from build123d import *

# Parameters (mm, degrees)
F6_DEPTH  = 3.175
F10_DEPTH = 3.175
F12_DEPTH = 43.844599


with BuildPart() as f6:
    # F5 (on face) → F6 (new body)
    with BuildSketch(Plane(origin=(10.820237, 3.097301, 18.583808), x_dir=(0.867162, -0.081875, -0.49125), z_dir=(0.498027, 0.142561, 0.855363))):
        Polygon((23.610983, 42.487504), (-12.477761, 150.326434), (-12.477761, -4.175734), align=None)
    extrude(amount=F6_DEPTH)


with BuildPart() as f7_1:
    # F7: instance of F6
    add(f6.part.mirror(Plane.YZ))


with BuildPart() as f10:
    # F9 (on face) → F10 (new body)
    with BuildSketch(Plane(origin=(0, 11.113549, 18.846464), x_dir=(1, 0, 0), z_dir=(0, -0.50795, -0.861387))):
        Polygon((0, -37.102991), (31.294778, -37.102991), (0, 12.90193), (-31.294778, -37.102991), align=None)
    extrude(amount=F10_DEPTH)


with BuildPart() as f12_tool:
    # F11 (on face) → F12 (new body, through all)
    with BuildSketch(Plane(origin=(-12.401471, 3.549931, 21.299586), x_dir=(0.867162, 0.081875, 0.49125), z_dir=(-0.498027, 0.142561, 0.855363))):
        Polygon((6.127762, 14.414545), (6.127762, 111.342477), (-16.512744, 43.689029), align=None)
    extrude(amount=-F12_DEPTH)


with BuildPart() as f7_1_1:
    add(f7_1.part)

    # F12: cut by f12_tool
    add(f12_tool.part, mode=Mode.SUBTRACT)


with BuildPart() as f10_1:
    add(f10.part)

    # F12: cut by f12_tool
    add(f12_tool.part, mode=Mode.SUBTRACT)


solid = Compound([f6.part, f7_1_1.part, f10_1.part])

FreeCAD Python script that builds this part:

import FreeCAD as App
import Part
import Sketcher
from FreeCAD import Vector
Q = App.Units.Quantity


def add_polygon(sketch, points):
    """Adds a closed chain of lines whose ends are joined by coincident constraints."""
    first, n = sketch.GeometryCount, len(points)
    for a, b in zip(points, points[1:] + points[:1]):
        sketch.addGeometry(Part.LineSegment(App.Vector(*a, 0), App.Vector(*b, 0)), False)
    for i in range(n):
        sketch.addConstraint(Sketcher.Constraint("Coincident", first + i, 2, first + (i + 1) % n, 1))

doc = App.newDocument("Part")
params = doc.addObject("Spreadsheet::Sheet", "Params")
for row, (alias, value) in enumerate([
    ("pad1_length", "0.125 in"),
    ("pad2_length", "0.125 in"),
    ("pad3_length", "43.844599 mm"),
], start=1):
    params.set(f"A{row}", alias)
    params.set(f"B{row}", "=" + value)
    params.setAlias(f"B{row}", alias)

body = doc.addObject("PartDesign::Body", "Body")

# Sketch on an angled plane
sketch1 = body.newObject("Sketcher::SketchObject", "Sketch")
sketch1.Placement = App.Placement(Vector(10.820237, 3.097301, 18.583808), App.Rotation(Vector(0.867161579, -0.081875118, -0.49125071), Vector(-0.000000246, 0.986393853, -0.164399409), Vector(0.498026902, 0.142560972, 0.855362832), "ZXY"))
add_polygon(sketch1, [(24, 42), (-12, 150), (-12, -4)])  # lines 0-2
sketch1.addConstraint(Sketcher.Constraint("Vertical", 1))
sketch1.addConstraint(Sketcher.Constraint("DistanceY", 1, 2, 1, 1, Q("154.502168 mm")))
sketch1.addConstraint(Sketcher.Constraint("DistanceX", 0, 2, -1, 1, Q("12.477761 mm")))
sketch1.addConstraint(Sketcher.Constraint("DistanceY", 2, 2, 0, 2, Q("107.83893 mm")))
sketch1.addConstraint(Sketcher.Constraint("Distance", 0, Q("113.717335 mm")))
sketch1.addConstraint(Sketcher.Constraint("DistanceY", -1, 1, 0, 2, Q("150.326434 mm")))
pad1 = body.newObject("PartDesign::Pad", "Pad")
pad1.Profile = sketch1
pad1.setExpression("Length", "Params.pad1_length")
body2 = doc.addObject("PartDesign::Body", "Body001")
doc.recompute()

mirroring = doc.addObject("Part::Mirroring", "Mirroring")
mirroring.Source = body
mirroring.Base = Vector(0, 0, 0)
mirroring.Normal = Vector(1, 0, 0)
body2.BaseFeature = mirroring
doc.recompute()
body3 = doc.addObject("PartDesign::Body", "Body002")

# Sketch on an angled plane
sketch2 = body3.newObject("Sketcher::SketchObject", "Sketch001")
sketch2.Placement = App.Placement(Vector(0, 11.113549, 18.846464), App.Rotation(Vector(1, 0, 0), Vector(0, -0.86138667, 0.507949805), Vector(0, -0.507949805, -0.86138667), "ZXY"))
add_polygon(sketch2, [(31, -37), (0, 13), (-31, -37)])  # lines 0-2
sketch2.addConstraint(Sketcher.Constraint("Horizontal", 2))
sketch2.addConstraint(Sketcher.Constraint("PointOnObject", 0, 2, -2))
sketch2.addConstraint(Sketcher.Constraint("Equal", 0, 1))
sketch2.addConstraint(Sketcher.Constraint("DistanceX", 2, 1, 2, 2, Q("62.589556 mm")))
sketch2.addConstraint(Sketcher.Constraint("DistanceY", -1, 1, 0, 2, Q("12.90193 mm")))
sketch2.addConstraint(Sketcher.Constraint("DistanceY", 1, 2, -1, 1, Q("37.102991 mm")))
pad2 = body3.newObject("PartDesign::Pad", "Pad001")
pad2.Profile = sketch2
pad2.setExpression("Length", "Params.pad2_length")
body4 = doc.addObject("PartDesign::Body", "Body003")

# Sketch on an angled plane
sketch3 = body4.newObject("Sketcher::SketchObject", "Sketch002")
sketch3.Placement = App.Placement(Vector(-12.401471, 3.549931, 21.299586), App.Rotation(Vector(0.867161579, 0.081875118, 0.49125071), Vector(0.000000246, 0.986393853, -0.164399409), Vector(-0.498026902, 0.142560972, 0.855362832), "ZXY"))
add_polygon(sketch3, [(6, 14), (6, 111), (-17, 44)])  # lines 0-2
sketch3.addConstraint(Sketcher.Constraint("Vertical", 0))
sketch3.addConstraint(Sketcher.Constraint("DistanceY", 0, 1, 0, 2, Q("96.927932 mm")))
sketch3.addConstraint(Sketcher.Constraint("DistanceX", -1, 1, 0, 2, Q("6.127762 mm")))
sketch3.addConstraint(Sketcher.Constraint("DistanceY", -1, 1, 1, 2, Q("43.689029 mm")))
sketch3.addConstraint(Sketcher.Constraint("Distance", 1, Q("71.341303 mm")))
sketch3.addConstraint(Sketcher.Constraint("Distance", 2, Q("37.007944 mm")))
pad3 = body4.newObject("PartDesign::Pad", "Pad002")
pad3.Profile = sketch3
pad3.setExpression("Length", "Params.pad3_length")
pad3.Reversed = True
doc.recompute()

body5 = doc.addObject("PartDesign::Body", "Body004")
body5.BaseFeature = body4
boolean = body2.newObject("PartDesign::Boolean", "Boolean")
boolean.Type = "Cut"
boolean.addObjects([body5])
doc.recompute()

boolean2 = body3.newObject("PartDesign::Boolean", "Boolean001")
boolean2.Type = "Cut"
boolean2.addObjects([body4])
mirroring.Visibility = False

doc.recompute()
